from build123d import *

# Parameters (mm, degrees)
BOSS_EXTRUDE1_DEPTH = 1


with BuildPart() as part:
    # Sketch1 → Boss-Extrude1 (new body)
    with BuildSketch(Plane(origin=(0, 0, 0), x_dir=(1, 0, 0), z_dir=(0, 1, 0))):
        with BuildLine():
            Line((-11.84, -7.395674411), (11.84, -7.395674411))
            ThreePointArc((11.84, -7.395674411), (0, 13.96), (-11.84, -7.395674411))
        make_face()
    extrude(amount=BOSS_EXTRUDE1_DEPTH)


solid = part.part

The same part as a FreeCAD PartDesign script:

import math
import FreeCAD as App
import Part
import Sketcher
Q = App.Units.Quantity

doc = App.newDocument("Part")
params = doc.addObject("Spreadsheet::Sheet", "Params")
for row, (alias, value) in enumerate([
    ("sketch1_radius", "13.96 mm"),
    ("sketch1_width", "23.68 mm"),
    ("pad1_length", "1 mm"),
], start=1):
    params.set(f"A{row}", alias)
    params.set(f"B{row}", "=" + value)
    params.setAlias(f"B{row}", alias)

body = doc.addObject("PartDesign::Body", "Body")

# Sketch on XZ plane
sketch1 = body.newObject("Sketcher::SketchObject", "Sketch")
sketch1.AttachmentSupport = (doc.getObject("XZ_Plane"), [""])
sketch1.MapMode = "FlatFace"
sketch1.addGeometry(Part.LineSegment(App.Vector(-12, 7, 0), App.Vector(12, 7, 0)), False)
sketch1.addGeometry(Part.ArcOfCircle(Part.Circle(App.Vector(0, 0, 0), App.Vector(0, 0, 1), 14), math.radians(148), math.radians(392)), False)
sketch1.addConstraint(Sketcher.Constraint("Coincident", 0, 1, 1, 1))
sketch1.addConstraint(Sketcher.Constraint("Coincident", 1, 2, 0, 2))
sketch1.addConstraint(Sketcher.Constraint("Horizontal", 0))
sketch1.addConstraint(Sketcher.Constraint("Coincident", 1, 3, -1, 1))
sketch1.addConstraint(Sketcher.Constraint("Radius", 1, Q("13.96 mm")))
sketch1.addConstraint(Sketcher.Constraint("DistanceX", 0, 1, 0, 2, Q("23.68 mm")))
sketch1.setExpression("Constraints[4]", "Params.sketch1_radius")
sketch1.setExpression("Constraints[5]", "Params.sketch1_width")
pad1 = body.newObject("PartDesign::Pad", "Pad")
pad1.Profile = sketch1
pad1.setExpression("Length", "Params.pad1_length")
pad1.Reversed = True

doc.recompute()
